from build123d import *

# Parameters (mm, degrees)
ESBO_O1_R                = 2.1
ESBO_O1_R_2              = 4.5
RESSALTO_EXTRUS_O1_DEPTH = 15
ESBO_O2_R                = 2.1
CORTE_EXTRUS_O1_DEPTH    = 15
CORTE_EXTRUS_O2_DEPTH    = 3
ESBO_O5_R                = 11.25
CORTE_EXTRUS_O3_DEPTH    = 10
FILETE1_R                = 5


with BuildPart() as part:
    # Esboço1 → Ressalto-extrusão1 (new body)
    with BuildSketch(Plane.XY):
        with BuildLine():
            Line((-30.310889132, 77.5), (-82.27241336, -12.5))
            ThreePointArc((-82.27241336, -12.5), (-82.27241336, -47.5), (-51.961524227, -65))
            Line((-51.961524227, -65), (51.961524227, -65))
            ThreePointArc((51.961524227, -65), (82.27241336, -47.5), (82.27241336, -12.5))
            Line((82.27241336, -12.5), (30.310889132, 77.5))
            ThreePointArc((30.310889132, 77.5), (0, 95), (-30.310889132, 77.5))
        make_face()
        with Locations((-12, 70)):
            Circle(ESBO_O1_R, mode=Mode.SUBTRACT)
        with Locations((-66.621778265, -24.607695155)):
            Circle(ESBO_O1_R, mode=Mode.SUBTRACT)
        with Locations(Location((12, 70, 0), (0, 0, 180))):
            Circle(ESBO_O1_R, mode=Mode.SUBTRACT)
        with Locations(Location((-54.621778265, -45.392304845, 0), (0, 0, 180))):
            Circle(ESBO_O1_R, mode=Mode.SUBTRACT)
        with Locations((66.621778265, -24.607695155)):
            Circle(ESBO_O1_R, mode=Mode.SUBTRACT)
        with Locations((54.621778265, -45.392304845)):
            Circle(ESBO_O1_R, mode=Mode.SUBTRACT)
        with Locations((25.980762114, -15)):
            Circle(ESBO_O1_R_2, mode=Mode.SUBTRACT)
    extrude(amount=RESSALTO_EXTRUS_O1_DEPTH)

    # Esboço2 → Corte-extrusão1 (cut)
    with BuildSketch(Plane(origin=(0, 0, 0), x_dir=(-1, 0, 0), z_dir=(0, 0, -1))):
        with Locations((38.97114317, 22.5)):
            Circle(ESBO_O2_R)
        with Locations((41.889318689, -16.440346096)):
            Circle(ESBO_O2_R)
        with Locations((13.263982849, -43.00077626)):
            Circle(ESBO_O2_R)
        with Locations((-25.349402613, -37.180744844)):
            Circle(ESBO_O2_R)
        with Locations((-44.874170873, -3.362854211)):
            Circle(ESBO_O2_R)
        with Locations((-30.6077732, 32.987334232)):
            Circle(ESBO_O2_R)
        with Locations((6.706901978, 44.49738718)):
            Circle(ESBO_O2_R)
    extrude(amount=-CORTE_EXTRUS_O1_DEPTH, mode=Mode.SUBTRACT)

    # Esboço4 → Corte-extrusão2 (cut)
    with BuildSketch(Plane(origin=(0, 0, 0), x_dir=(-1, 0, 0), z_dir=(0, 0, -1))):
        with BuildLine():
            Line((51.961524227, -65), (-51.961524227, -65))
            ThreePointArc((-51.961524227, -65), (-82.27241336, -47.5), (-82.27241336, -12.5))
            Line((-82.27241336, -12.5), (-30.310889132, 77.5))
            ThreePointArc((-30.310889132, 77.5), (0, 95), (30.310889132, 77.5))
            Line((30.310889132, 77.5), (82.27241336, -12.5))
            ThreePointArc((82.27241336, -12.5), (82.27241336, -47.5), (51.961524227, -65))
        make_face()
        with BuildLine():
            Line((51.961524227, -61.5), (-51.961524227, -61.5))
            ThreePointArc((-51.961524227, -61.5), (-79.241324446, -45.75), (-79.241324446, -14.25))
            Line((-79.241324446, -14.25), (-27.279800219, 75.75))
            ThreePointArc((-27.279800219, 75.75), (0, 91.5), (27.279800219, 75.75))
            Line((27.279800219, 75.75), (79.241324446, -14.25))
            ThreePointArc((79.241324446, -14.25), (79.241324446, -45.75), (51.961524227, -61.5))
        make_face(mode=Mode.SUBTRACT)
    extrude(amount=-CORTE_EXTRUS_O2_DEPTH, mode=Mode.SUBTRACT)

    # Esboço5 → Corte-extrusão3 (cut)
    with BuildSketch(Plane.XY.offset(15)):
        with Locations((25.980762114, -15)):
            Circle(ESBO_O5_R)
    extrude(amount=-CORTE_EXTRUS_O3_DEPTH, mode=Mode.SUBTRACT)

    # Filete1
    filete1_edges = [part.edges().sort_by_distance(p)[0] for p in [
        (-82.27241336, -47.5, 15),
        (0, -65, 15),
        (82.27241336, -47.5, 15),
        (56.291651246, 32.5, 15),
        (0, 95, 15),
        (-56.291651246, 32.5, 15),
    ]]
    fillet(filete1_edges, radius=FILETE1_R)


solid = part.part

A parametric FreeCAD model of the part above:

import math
import FreeCAD as App
import Part
import Sketcher
from FreeCAD import Vector
Q = App.Units.Quantity


def edges_at(feature, points):
    """Names of the edges that pass closest to the given points."""
    edges = feature.Shape.Edges
    near = lambda p: min(range(len(edges)), key=lambda i: edges[i].distToShape(Part.Vertex(*p))[0])
    return sorted({f"Edge{near(p) + 1}" for p in points})

doc = App.newDocument("Part")
body = doc.addObject("PartDesign::Body", "Body")

# Sketch on XY plane
sketch1 = doc.addObject("Sketcher::SketchObject", "Sketch")
body.addObject(sketch1)
sketch1.AttachmentSupport = (doc.XY_Plane, [""])
sketch1.MapMode = "FlatFace"
sketch1.addGeometry([
    Part.LineSegment(Vector(-30.310889, 77.5, 0), Vector(-82.272413, -12.5, 0)),  # 0
    Part.ArcOfCircle(Part.Circle(Vector(-51.961524, -30, 0), Vector(0, 0, 1), 35), math.radians(150), math.radians(270)),  # 1
    Part.LineSegment(Vector(-51.961524, -65, 0), Vector(51.961524, -65, 0)),  # 2
    Part.ArcOfCircle(Part.Circle(Vector(51.961524, -30, 0), Vector(0, 0, 1), 35), math.radians(-90), math.radians(30)),  # 3
    Part.LineSegment(Vector(82.272413, -12.5, 0), Vector(30.310889, 77.5, 0)),  # 4
    Part.ArcOfCircle(Part.Circle(Vector(0, 60, 0), Vector(0, 0, 1), 35), math.radians(30), math.radians(150)),  # 5
    Part.Circle(Vector(-54.621778, -45.392305, 0), Vector(0, 0, 1), 2.1),  # 6
    Part.Circle(Vector(-66.621778, -24.607695, 0), Vector(0, 0, 1), 2.1),  # 7
    Part.Circle(Vector(54.621778, -45.392305, 0), Vector(0, 0, 1), 2.1),  # 8
    Part.Circle(Vector(66.621778, -24.607695, 0), Vector(0, 0, 1), 2.1),  # 9
    Part.Circle(Vector(25.980762, -15, 0), Vector(0, 0, 1), 4.5),  # 10
    Part.Circle(Vector(-12, 70, 0), Vector(0, 0, 1), 2.1),  # 11
    Part.Circle(Vector(12, 70, 0), Vector(0, 0, 1), 2.1),  # 12
], False)
sketch1.addConstraint([
    Sketcher.Constraint("Tangent", 0, 2, 1, 1),
    Sketcher.Constraint("Tangent", 1, 2, 2, 1),
    Sketcher.Constraint("Tangent", 2, 2, 3, 1),
    Sketcher.Constraint("Tangent", 3, 2, 4, 1),
    Sketcher.Constraint("Tangent", 4, 2, 5, 1),
    Sketcher.Constraint("Tangent", 5, 2, 0, 1),
    Sketcher.Constraint("Horizontal", 2),
    Sketcher.Constraint("Equal", 1, 3),
    Sketcher.Constraint("Equal", 3, 5),
    Sketcher.Constraint("Equal", 6, 7),
    Sketcher.Constraint("Equal", 7, 8),
    Sketcher.Constraint("Equal", 8, 9),
    Sketcher.Constraint("Equal", 9, 11),
    Sketcher.Constraint("Equal", 11, 12),
    Sketcher.Constraint("Symmetric", 6, 3, 8, 3, -2),
    Sketcher.Constraint("Symmetric", 7, 3, 9, 3, -2),
    Sketcher.Constraint("Symmetric", 11, 3, 12, 3, -2),
    Sketcher.Constraint("Symmetric", 0, 2, 3, 2, -2),
    Sketcher.Constraint("Diameter", 10, Q("9 mm")),
    Sketcher.Constraint("Radius", 1, Q("35 mm")),
    Sketcher.Constraint("Diameter", 6, Q("4.2 mm")),
    Sketcher.Constraint("Angle", 0, Q("-120 deg")),
    Sketcher.Constraint("DistanceY", 1, 3, -1, 1, Q("30 mm")),
    Sketcher.Constraint("DistanceY", -1, 1, 5, 3, Q("60 mm")),
    Sketcher.Constraint("DistanceY", 10, 3, -1, 1, Q("15 mm")),
    Sketcher.Constraint("DistanceX", 11, 3, -1, 1, Q("12 mm")),
    Sketcher.Constraint("DistanceY", -1, 1, 11, 3, Q("70 mm")),
    Sketcher.Constraint("DistanceX", 7, 3, 6, 3, Q("12 mm")),
    Sketcher.Constraint("DistanceX", 6, 3, -1, 1, Q("54.621778 mm")),
    Sketcher.Constraint("DistanceY", 6, 3, 7, 3, Q("20.78461 mm")),
    Sketcher.Constraint("DistanceX", 10, 3, 3, 2, Q("56.291651 mm")),
    Sketcher.Constraint("DistanceY", 6, 3, -1, 1, Q("45.392305 mm")),
])
pad1 = doc.addObject("PartDesign::Pad", "Pad")
body.addObject(pad1)
pad1.Profile = sketch1
pad1.Length = 15

# Sketch on XY plane
sketch2 = doc.addObject("Sketcher::SketchObject", "Sketch001")
body.addObject(sketch2)
sketch2.AttachmentSupport = (doc.XY_Plane, [""])
sketch2.MapMode = "FlatFace"
sketch2.addGeometry([
    Part.Circle(Vector(-38.971143, 22.5, 0), Vector(0, 0, 1), 2.1),  # 0
    Part.Circle(Vector(-41.889319, -16.440346, 0), Vector(0, 0, 1), 2.1),  # 1
    Part.Circle(Vector(-13.263983, -43.000776, 0), Vector(0, 0, 1), 2.1),  # 2
    Part.Circle(Vector(25.349403, -37.180745, 0), Vector(0, 0, 1), 2.1),  # 3
    Part.Circle(Vector(44.874171, -3.362854, 0), Vector(0, 0, 1), 2.1),  # 4
    Part.Circle(Vector(30.607773, 32.987334, 0), Vector(0, 0, 1), 2.1),  # 5
    Part.Circle(Vector(-6.706902, 44.497387, 0), Vector(0, 0, 1), 2.1),  # 6
], False)
sketch2.addConstraint([
    Sketcher.Constraint("Equal", 0, 1),
    Sketcher.Constraint("Equal", 1, 2),
    Sketcher.Constraint("Equal", 2, 3),
    Sketcher.Constraint("Equal", 3, 4),
    Sketcher.Constraint("Equal", 4, 5),
    Sketcher.Constraint("Equal", 5, 6),
    Sketcher.Constraint("Diameter", 0, Q("4.2 mm")),
    Sketcher.Constraint("DistanceY", -1, 1, 0, 3, Q("22.5 mm")),
    Sketcher.Constraint("DistanceX", 6, 3, -1, 1, Q("6.706902 mm")),
    Sketcher.Constraint("DistanceY", 3, 3, 1, 3, Q("20.740399 mm")),
    Sketcher.Constraint("DistanceX", 1, 3, -1, 1, Q("41.889319 mm")),
    Sketcher.Constraint("DistanceX", -1, 1, 4, 3, Q("44.874171 mm")),
    Sketcher.Constraint("DistanceY", 2, 3, 1, 3, Q("26.56043 mm")),
    Sketcher.Constraint("DistanceX", 0, 3, 2, 3, Q("25.70716 mm")),
    Sketcher.Constraint("DistanceX", 1, 3, 3, 3, Q("67.238721 mm")),
    Sketcher.Constraint("DistanceY", 3, 3, 4, 3, Q("33.817891 mm")),
    Sketcher.Constraint("DistanceY", 4, 3, 5, 3, Q("36.350188 mm")),
    Sketcher.Constraint("DistanceX", 3, 3, 5, 3, Q("5.258371 mm")),
    Sketcher.Constraint("DistanceX", 0, 3, 6, 3, Q("32.264241 mm")),
    Sketcher.Constraint("DistanceY", 4, 3, 6, 3, Q("47.860241 mm")),
    Sketcher.Constraint("DistanceY", 1, 3, -1, 1, Q("16.440346 mm")),
])
pocket1 = doc.addObject("PartDesign::Pocket", "Pocket")
body.addObject(pocket1)
pocket1.Profile = sketch2
pocket1.Length = 15
pocket1.Reversed = True

# Sketch on XY plane
sketch3 = doc.addObject("Sketcher::SketchObject", "Sketch002")
body.addObject(sketch3)
sketch3.AttachmentSupport = (doc.XY_Plane, [""])
sketch3.MapMode = "FlatFace"
sketch3.addGeometry([
    Part.LineSegment(Vector(51.961524, -65, 0), Vector(-51.961524, -65, 0)),  # 0
    Part.ArcOfCircle(Part.Circle(Vector(-51.961524, -30, 0), Vector(0, 0, 1), 35), math.radians(150), math.radians(270)),  # 1
    Part.LineSegment(Vector(-82.272413, -12.5, 0), Vector(-30.310889, 77.5, 0)),  # 2
    Part.ArcOfCircle(Part.Circle(Vector(0, 60, 0), Vector(0, 0, 1), 35), math.radians(30), math.radians(150)),  # 3
    Part.LineSegment(Vector(30.310889, 77.5, 0), Vector(82.272413, -12.5, 0)),  # 4
    Part.ArcOfCircle(Part.Circle(Vector(51.961524, -30, 0), Vector(0, 0, 1), 35), math.radians(-90), math.radians(30)),  # 5
    Part.LineSegment(Vector(-51.961524, -61.5, 0), Vector(51.961524, -61.5, 0)),  # 6
    Part.ArcOfCircle(Part.Circle(Vector(51.961524, -30, 0), Vector(0, 0, 1), 31.5), math.radians(-90), math.radians(30)),  # 7
    Part.LineSegment(Vector(79.241324, -14.25, 0), Vector(27.2798, 75.75, 0)),  # 8
    Part.ArcOfCircle(Part.Circle(Vector(0, 60, 0), Vector(0, 0, 1), 31.5), math.radians(30), math.radians(150)),  # 9
    Part.LineSegment(Vector(-27.2798, 75.75, 0), Vector(-79.241324, -14.25, 0)),  # 10
    Part.ArcOfCircle(Part.Circle(Vector(-51.961524, -30, 0), Vector(0, 0, 1), 31.5), math.radians(150), math.radians(270)),  # 11
], False)
sketch3.addConstraint([
    Sketcher.Constraint("Tangent", 0, 2, 1, 2),
    Sketcher.Constraint("Tangent", 1, 1, 2, 1),
    Sketcher.Constraint("Tangent", 2, 2, 3, 2),
    Sketcher.Constraint("Tangent", 3, 1, 4, 1),
    Sketcher.Constraint("Tangent", 4, 2, 5, 2),
    Sketcher.Constraint("Tangent", 5, 1, 0, 1),
    Sketcher.Constraint("Tangent", 6, 2, 7, 1),
    Sketcher.Constraint("Tangent", 7, 2, 8, 1),
    Sketcher.Constraint("Tangent", 8, 2, 9, 1),
    Sketcher.Constraint("Tangent", 9, 2, 10, 1),
    Sketcher.Constraint("Tangent", 10, 2, 11, 1),
    Sketcher.Constraint("Tangent", 11, 2, 6, 1),
    Sketcher.Constraint("Horizontal", 0),
    Sketcher.Constraint("Horizontal", 6),
    Sketcher.Constraint("Coincident", 7, 3, 5, 3),
    Sketcher.Constraint("Coincident", 9, 3, 3, 3),
    Sketcher.Constraint("Coincident", 11, 3, 1, 3),
    Sketcher.Constraint("Equal", 1, 3),
    Sketcher.Constraint("Equal", 3, 5),
    Sketcher.Constraint("Equal", 7, 9),
    Sketcher.Constraint("Symmetric", 2, 2, 3, 1, -2),
    Sketcher.Constraint("Radius", 1, Q("35 mm")),
    Sketcher.Constraint("Radius", 7, Q("31.5 mm")),
    Sketcher.Constraint("Angle", 2, Q("60 deg")),
    Sketcher.Constraint("DistanceY", 1, 3, -1, 1, Q("30 mm")),
    Sketcher.Constraint("DistanceY", -1, 1, 3, 3, Q("60 mm")),
])
pocket2 = doc.addObject("PartDesign::Pocket", "Pocket001")
body.addObject(pocket2)
pocket2.Profile = sketch3
pocket2.Length = 3
pocket2.Reversed = True

# Sketch on XY plane
sketch4 = doc.addObject("Sketcher::SketchObject", "Sketch003")
body.addObject(sketch4)
sketch4.AttachmentSupport = (doc.XY_Plane, [""])
sketch4.MapMode = "FlatFace"
sketch4.AttachmentOffset = App.Placement(Vector(0, 0, 15), App.Rotation())
sketch4.addGeometry(Part.Circle(Vector(25.980762, -15, 0), Vector(0, 0, 1), 11.25), False)
sketch4.addConstraint([
    Sketcher.Constraint("Diameter", 0, Q("22.5 mm")),
    Sketcher.Constraint("DistanceY", 0, 3, -1, 1, Q("15 mm")),
    Sketcher.Constraint("DistanceX", -1, 1, 0, 3, Q("25.980762 mm")),
])
pocket3 = doc.addObject("PartDesign::Pocket", "Pocket002")
body.addObject(pocket3)
pocket3.Profile = sketch4
pocket3.Length = 10
doc.recompute()

fillet = doc.addObject("PartDesign::Fillet", "Fillet")
body.addObject(fillet)
fillet.Base = (pocket3, edges_at(pocket3, [
    (-82.272, -47.5, 15),
    (0, -65, 15),
    (82.272, -47.5, 15),
    (56.292, 32.5, 15),
    (0, 95, 15),
    (-56.292, 32.5, 15),
]))
fillet.Radius = 5

doc.recompute()
